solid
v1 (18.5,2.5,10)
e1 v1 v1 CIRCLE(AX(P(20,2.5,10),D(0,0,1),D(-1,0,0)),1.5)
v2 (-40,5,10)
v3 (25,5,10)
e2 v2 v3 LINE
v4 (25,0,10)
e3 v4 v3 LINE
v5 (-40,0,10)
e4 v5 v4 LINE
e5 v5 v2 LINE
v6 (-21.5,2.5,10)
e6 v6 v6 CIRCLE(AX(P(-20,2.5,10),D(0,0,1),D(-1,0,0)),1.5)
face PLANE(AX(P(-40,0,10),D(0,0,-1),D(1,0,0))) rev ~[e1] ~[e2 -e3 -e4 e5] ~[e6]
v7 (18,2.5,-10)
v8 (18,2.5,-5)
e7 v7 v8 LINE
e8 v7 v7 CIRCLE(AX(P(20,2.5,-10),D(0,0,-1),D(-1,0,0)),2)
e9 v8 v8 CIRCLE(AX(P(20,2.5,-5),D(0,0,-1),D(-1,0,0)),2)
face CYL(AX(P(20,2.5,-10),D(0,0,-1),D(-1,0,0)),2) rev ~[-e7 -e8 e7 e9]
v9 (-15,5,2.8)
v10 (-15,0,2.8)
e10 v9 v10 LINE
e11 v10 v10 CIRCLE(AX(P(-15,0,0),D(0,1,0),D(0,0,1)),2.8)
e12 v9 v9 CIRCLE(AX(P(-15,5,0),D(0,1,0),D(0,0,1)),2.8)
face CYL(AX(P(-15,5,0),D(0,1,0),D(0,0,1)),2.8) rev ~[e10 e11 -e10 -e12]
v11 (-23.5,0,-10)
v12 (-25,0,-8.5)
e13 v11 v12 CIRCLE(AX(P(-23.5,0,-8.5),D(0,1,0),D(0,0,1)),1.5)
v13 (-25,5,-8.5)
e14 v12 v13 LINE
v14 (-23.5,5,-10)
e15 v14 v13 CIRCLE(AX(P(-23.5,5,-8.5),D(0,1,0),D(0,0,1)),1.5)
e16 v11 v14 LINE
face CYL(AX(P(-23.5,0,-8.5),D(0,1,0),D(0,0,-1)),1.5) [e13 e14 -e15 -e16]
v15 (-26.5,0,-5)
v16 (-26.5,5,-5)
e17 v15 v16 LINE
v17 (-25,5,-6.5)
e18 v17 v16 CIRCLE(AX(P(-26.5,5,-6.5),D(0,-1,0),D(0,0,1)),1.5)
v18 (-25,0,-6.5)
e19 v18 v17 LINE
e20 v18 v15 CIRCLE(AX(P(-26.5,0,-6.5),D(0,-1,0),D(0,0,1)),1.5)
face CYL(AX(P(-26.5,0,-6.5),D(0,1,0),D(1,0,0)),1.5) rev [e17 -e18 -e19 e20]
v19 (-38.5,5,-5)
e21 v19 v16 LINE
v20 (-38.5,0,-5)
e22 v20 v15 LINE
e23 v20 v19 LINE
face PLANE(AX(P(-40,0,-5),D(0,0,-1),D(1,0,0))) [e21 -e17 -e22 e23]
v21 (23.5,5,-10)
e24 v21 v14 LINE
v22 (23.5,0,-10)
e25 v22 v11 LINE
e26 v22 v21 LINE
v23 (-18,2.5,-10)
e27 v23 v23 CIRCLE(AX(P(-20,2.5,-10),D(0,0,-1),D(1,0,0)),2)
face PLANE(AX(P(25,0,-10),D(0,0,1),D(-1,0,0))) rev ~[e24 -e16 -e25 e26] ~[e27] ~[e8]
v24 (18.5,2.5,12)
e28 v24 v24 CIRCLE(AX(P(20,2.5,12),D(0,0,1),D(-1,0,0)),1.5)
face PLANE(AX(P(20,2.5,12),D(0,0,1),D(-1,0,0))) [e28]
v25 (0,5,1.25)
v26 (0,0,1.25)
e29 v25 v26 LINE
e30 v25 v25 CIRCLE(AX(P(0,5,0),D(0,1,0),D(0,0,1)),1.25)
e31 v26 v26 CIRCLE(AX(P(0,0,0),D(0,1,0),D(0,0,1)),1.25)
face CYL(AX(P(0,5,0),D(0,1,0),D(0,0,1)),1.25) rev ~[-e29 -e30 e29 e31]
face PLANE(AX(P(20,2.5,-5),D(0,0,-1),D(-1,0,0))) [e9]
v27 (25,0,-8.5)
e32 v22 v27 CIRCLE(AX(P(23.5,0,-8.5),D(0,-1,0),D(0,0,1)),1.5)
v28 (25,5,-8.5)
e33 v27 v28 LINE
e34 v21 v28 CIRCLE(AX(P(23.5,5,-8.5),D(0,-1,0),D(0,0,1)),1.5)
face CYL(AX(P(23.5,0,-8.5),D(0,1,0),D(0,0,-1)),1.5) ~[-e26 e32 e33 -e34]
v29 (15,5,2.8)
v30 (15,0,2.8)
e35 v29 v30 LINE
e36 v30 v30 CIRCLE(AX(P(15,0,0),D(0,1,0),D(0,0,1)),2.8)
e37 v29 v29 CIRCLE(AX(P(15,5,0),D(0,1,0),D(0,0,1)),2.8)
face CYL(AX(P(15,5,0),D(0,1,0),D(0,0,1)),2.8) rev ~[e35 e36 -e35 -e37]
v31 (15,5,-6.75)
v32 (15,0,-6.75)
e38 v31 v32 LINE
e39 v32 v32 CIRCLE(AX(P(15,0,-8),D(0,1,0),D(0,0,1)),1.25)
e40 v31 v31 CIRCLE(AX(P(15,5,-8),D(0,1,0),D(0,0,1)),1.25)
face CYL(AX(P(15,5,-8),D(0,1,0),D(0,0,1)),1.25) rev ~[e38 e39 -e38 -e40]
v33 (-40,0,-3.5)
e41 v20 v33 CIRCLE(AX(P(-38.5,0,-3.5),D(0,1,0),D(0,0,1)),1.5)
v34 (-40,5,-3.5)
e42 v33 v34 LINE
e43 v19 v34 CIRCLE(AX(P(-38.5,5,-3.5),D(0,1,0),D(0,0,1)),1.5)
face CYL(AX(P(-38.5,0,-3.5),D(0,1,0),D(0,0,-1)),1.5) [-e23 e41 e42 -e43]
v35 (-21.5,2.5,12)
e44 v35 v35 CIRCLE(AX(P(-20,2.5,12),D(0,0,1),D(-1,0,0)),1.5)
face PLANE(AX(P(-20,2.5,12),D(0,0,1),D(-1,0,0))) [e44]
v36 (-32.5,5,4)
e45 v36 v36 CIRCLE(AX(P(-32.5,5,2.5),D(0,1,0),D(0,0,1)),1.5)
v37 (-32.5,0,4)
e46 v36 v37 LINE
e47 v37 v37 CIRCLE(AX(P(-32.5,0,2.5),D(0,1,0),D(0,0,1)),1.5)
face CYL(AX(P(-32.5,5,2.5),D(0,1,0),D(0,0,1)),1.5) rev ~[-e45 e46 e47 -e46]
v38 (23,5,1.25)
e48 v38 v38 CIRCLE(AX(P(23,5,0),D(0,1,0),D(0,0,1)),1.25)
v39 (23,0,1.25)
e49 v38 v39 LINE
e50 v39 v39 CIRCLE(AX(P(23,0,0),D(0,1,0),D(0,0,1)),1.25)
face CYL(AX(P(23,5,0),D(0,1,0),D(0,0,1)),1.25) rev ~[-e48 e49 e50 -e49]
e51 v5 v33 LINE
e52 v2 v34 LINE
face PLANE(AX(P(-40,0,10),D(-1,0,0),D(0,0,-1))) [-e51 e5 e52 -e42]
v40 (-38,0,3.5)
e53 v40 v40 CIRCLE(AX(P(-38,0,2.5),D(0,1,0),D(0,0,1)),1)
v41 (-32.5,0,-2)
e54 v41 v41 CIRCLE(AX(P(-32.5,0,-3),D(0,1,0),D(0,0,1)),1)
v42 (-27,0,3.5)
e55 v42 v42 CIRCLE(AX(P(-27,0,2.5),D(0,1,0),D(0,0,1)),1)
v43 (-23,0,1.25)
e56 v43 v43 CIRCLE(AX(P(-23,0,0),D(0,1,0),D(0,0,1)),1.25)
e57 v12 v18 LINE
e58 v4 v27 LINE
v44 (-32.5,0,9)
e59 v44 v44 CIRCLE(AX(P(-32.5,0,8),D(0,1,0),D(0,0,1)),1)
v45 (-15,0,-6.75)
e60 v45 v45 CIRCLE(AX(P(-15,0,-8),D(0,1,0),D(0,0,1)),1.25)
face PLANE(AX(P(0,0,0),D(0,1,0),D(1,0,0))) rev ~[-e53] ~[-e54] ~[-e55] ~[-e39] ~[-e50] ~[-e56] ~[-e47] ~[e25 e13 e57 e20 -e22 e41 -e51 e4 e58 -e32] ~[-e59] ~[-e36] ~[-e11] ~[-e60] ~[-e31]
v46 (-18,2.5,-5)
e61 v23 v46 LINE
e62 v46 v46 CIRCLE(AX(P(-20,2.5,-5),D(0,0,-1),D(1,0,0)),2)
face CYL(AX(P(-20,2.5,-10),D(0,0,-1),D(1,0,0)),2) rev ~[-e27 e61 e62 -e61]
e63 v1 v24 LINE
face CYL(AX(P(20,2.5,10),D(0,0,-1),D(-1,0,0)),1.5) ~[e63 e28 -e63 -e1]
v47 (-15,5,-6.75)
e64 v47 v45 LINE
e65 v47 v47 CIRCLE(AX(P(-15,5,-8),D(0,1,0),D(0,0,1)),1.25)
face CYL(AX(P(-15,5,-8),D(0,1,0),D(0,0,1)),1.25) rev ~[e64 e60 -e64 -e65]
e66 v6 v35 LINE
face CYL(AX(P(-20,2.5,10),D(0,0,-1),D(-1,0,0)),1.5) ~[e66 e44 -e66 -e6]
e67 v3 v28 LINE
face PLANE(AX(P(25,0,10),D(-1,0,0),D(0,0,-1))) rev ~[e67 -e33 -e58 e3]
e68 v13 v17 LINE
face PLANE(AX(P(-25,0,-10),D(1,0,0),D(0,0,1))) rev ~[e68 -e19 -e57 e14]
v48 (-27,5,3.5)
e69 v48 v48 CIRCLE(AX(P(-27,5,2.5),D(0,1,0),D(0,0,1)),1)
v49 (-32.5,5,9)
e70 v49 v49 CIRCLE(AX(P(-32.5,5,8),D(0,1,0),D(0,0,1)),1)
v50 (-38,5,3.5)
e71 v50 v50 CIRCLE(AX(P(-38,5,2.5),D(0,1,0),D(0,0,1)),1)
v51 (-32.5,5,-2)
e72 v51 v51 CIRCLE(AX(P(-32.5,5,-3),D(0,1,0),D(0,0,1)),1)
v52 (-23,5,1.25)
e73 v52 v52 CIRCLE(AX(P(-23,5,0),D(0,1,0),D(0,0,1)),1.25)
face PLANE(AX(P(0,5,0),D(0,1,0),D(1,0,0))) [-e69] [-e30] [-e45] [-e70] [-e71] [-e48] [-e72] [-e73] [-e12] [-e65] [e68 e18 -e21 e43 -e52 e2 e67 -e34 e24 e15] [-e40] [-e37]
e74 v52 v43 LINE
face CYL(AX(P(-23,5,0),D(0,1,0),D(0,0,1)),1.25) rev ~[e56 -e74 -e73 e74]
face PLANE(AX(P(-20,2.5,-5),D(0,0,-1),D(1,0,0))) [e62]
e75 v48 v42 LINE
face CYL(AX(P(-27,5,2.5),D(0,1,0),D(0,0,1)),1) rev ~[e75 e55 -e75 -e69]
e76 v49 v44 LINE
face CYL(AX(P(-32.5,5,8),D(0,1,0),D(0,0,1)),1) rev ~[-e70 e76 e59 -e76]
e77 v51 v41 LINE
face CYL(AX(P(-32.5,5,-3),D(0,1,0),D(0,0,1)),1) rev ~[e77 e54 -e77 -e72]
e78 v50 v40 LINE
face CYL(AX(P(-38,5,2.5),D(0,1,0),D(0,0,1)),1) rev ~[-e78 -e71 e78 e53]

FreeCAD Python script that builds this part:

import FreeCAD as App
import Part
import Sketcher
Q = App.Units.Quantity


def edges_at(feature, points):
    """Names of the edges that pass closest to the given points."""
    edges = feature.Shape.Edges
    near = lambda p: min(range(len(edges)), key=lambda i: edges[i].distToShape(Part.Vertex(*p))[0])
    return sorted({f"Edge{near(p) + 1}" for p in points})

doc = App.newDocument("Part")
body = doc.addObject("PartDesign::Body", "Body")

# Sketch on XZ plane
sketch1 = body.newObject("Sketcher::SketchObject", "Sketch")
sketch1.AttachmentSupport = (doc.getObject("XZ_Plane"), [""])
sketch1.MapMode = "FlatFace"
sketch1.addGeometry([
    Part.LineSegment(App.Vector(25, -10, 0), App.Vector(-25, -10, 0)),  # 0
    Part.LineSegment(App.Vector(-25, -10, 0), App.Vector(-25, -5, 0)),  # 1
    Part.LineSegment(App.Vector(-25, -5, 0), App.Vector(-40, -5, 0)),  # 2
    Part.LineSegment(App.Vector(-40, -5, 0), App.Vector(-40, 10, 0)),  # 3
    Part.LineSegment(App.Vector(-40, 10, 0), App.Vector(25, 10, 0)),  # 4
    Part.LineSegment(App.Vector(25, 10, 0), App.Vector(25, -10, 0)),  # 5
], False)
sketch1.addConstraint([
    Sketcher.Constraint("Coincident", 0, 2, 1, 1),
    Sketcher.Constraint("Coincident", 1, 2, 2, 1),
    Sketcher.Constraint("Coincident", 2, 2, 3, 1),
    Sketcher.Constraint("Coincident", 3, 2, 4, 1),
    Sketcher.Constraint("Coincident", 4, 2, 5, 1),
    Sketcher.Constraint("Coincident", 5, 2, 0, 1),
    Sketcher.Constraint("Horizontal", 0),
    Sketcher.Constraint("Vertical", 1),
    Sketcher.Constraint("Horizontal", 2),
    Sketcher.Constraint("Vertical", 3),
    Sketcher.Constraint("Horizontal", 4),
    Sketcher.Constraint("Vertical", 5),
    Sketcher.Constraint("Symmetric", 0, 2, 4, 2, -1, 1),
    Sketcher.Constraint("Equal", 2, 3),
    Sketcher.Constraint("DistanceX", 0, 2, 0, 1, Q("50 mm")),
    Sketcher.Constraint("DistanceX", 2, 2, 2, 1, Q("15 mm")),
    Sketcher.Constraint("DistanceY", 1, 1, 1, 2, Q("5 mm")),
])
pad1 = body.newObject("PartDesign::Pad", "Pad")
pad1.Profile = sketch1
pad1.Length = 5
pad1.Reversed = True

# Sketch on XZ plane
sketch2 = body.newObject("Sketcher::SketchObject", "Sketch001")
sketch2.AttachmentSupport = (doc.getObject("XZ_Plane"), [""])
sketch2.MapMode = "FlatFace"
sketch2.AttachmentOffset = App.Placement(App.Vector(0, 0, -5), App.Rotation())
sketch2.addGeometry([
    Part.Circle(App.Vector(0, 0, 0), App.Vector(0, 0, 1), 1.2),  # 0
    Part.Circle(App.Vector(15, 0, 0), App.Vector(0, 0, 1), 2.8),  # 1
    Part.Circle(App.Vector(-15, 0, 0), App.Vector(0, 0, 1), 2.8),  # 2
    Part.Circle(App.Vector(15, -8, 0), App.Vector(0, 0, 1), 1.2),  # 3
    Part.Circle(App.Vector(23, 0, 0), App.Vector(0, 0, 1), 1.2),  # 4
    Part.Circle(App.Vector(-23, 0, 0), App.Vector(0, 0, 1), 1.2),  # 5
    Part.Circle(App.Vector(-15, -8, 0), App.Vector(0, 0, 1), 1.2),  # 6
    Part.Circle(App.Vector(-32.5, 2.5, 0), App.Vector(0, 0, 1), 1.5),  # 7
    Part.Circle(App.Vector(-27, 2.5, 0), App.Vector(0, 0, 1), 1),  # 8
    Part.Circle(App.Vector(-32.5, 8, 0), App.Vector(0, 0, 1), 1),  # 9
    Part.Circle(App.Vector(-38, 2.5, 0), App.Vector(0, 0, 1), 1),  # 10
    Part.Circle(App.Vector(-32.5, -3, 0), App.Vector(0, 0, 1), 1),  # 11
], False)
sketch2.addConstraint([
    Sketcher.Constraint("Coincident", 0, 3, -1, 1),
    Sketcher.Constraint("Equal", 1, 2),
    Sketcher.Constraint("Equal", 0, 3),
    Sketcher.Constraint("Equal", 3, 4),
    Sketcher.Constraint("Equal", 4, 5),
    Sketcher.Constraint("Equal", 5, 6),
    Sketcher.Constraint("Equal", 8, 9),
    Sketcher.Constraint("Equal", 9, 10),
    Sketcher.Constraint("Equal", 10, 11),
    Sketcher.Constraint("Symmetric", 1, 3, 2, 3, -1, 1),
    Sketcher.Constraint("Symmetric", 4, 3, 5, 3, -1, 1),
    Sketcher.Constraint("Symmetric", 3, 3, 6, 3, -2),
    Sketcher.Constraint("PointOnObject", 1, 3, -1),
    Sketcher.Constraint("PointOnObject", 4, 3, -1),
    Sketcher.Constraint("Horizontal", 7, 3, 8, 3),
    Sketcher.Constraint("Horizontal", 8, 3, 10, 3),
    Sketcher.Constraint("Vertical", 1, 3, 3, 3),
    Sketcher.Constraint("Vertical", 7, 3, 9, 3),
    Sketcher.Constraint("Vertical", 9, 3, 11, 3),
    Sketcher.Constraint("Diameter", 7, Q("3 mm")),
    Sketcher.Constraint("Diameter", 8, Q("2 mm")),
    Sketcher.Constraint("Diameter", 0, Q("2.5 mm")),
    Sketcher.Constraint("Diameter", 1, Q("5.6 mm")),
    Sketcher.Constraint("DistanceX", -1, 1, 1, 3, Q("15 mm")),
    Sketcher.Constraint("DistanceY", 3, 3, -1, 1, Q("8 mm")),
    Sketcher.Constraint("DistanceX", -1, 1, 4, 3, Q("23 mm")),
    Sketcher.Constraint("DistanceX", 8, 3, -1, 1, Q("27 mm")),
    Sketcher.Constraint("DistanceY", -1, 1, 9, 3, Q("8 mm")),
    Sketcher.Constraint("DistanceX", 10, 3, -1, 1, Q("38 mm")),
    Sketcher.Constraint("DistanceY", 11, 3, -1, 1, Q("3 mm")),
    Sketcher.Constraint("DistanceX", 7, 3, -1, 1, Q("32.5 mm")),
    Sketcher.Constraint("DistanceY", -1, 1, 7, 3, Q("2.5 mm")),
])
pocket1 = body.newObject("PartDesign::Pocket", "Pocket")
pocket1.Profile = sketch2
pocket1.Length = 5
pocket1.Reversed = True
doc.recompute()

fillet = body.newObject("PartDesign::Fillet", "Fillet")
fillet.Base = (pocket1, edges_at(pocket1, [
    (-25, 2.5, -5),
    (-40, 2.5, -5),
    (-25, 2.5, -10),
    (25, 2.5, -10),
]))
fillet.Radius = 1.5

# Sketch on XY plane
sketch3 = body.newObject("Sketcher::SketchObject", "Sketch002")
sketch3.AttachmentSupport = (doc.getObject("XY_Plane"), [""])
sketch3.MapMode = "FlatFace"
sketch3.AttachmentOffset = App.Placement(App.Vector(0, 0, 10), App.Rotation())
sketch3.addGeometry([
    Part.Circle(App.Vector(20, 2.5, 0), App.Vector(0, 0, 1), 1.5),
    Part.Circle(App.Vector(-20, 2.5, 0), App.Vector(0, 0, 1), 1.5),
], False)
sketch3.addConstraint([
    Sketcher.Constraint("Equal", 0, 1),
    Sketcher.Constraint("Symmetric", 0, 3, 1, 3, -2),
    Sketcher.Constraint("Diameter", 0, Q("3 mm")),
    Sketcher.Constraint("DistanceX", -1, 1, 0, 3, Q("20 mm")),
    Sketcher.Constraint("DistanceY", -1, 1, 0, 3, Q("2.5 mm")),
])
pad2 = body.newObject("PartDesign::Pad", "Pad001")
pad2.Profile = sketch3
pad2.Length = 2

# Sketch on XY plane
sketch4 = body.newObject("Sketcher::SketchObject", "Sketch003")
sketch4.AttachmentSupport = (doc.getObject("XY_Plane"), [""])
sketch4.MapMode = "FlatFace"
sketch4.AttachmentOffset = App.Placement(App.Vector(0, 0, -10), App.Rotation())
sketch4.addGeometry([
    Part.Circle(App.Vector(20, 2.5, 0), App.Vector(0, 0, 1), 2),
    Part.Circle(App.Vector(-20, 2.5, 0), App.Vector(0, 0, 1), 2),
], False)
sketch4.addConstraint([
    Sketcher.Constraint("Equal", 0, 1),
    Sketcher.Constraint("Symmetric", 0, 3, 1, 3, -2),
    Sketcher.Constraint("Diameter", 0, Q("4 mm")),
    Sketcher.Constraint("DistanceX", -1, 1, 0, 3, Q("20 mm")),
    Sketcher.Constraint("DistanceY", -1, 1, 0, 3, Q("2.5 mm")),
])
pocket2 = body.newObject("PartDesign::Pocket", "Pocket001")
pocket2.Profile = sketch4
pocket2.Length = 5
pocket2.Reversed = True

doc.recompute()
